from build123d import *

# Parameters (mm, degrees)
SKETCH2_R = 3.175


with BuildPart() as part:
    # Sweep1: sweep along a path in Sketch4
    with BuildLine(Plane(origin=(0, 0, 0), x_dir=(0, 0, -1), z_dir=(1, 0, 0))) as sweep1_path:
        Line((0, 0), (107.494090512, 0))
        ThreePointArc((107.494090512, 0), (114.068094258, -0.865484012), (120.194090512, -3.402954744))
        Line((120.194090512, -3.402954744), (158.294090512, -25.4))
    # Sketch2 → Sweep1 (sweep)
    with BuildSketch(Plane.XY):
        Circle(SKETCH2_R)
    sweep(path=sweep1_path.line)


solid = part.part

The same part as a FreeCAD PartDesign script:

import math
import FreeCAD as App
import Part
import Sketcher
from FreeCAD import Vector
Q = App.Units.Quantity

doc = App.newDocument("Part")
body = doc.addObject("PartDesign::Body", "Body")

# Sketch on XY plane
sketch1 = doc.addObject("Sketcher::SketchObject", "Sketch")
body.addObject(sketch1)
sketch1.AttachmentSupport = (doc.XY_Plane, [""])
sketch1.MapMode = "FlatFace"
sketch1.addGeometry(Part.Circle(Vector(0, 0, 0), Vector(0, 0, 1), 3.2), False)
sketch1.addConstraint(Sketcher.Constraint("Coincident", 0, 3, -1, 1))
sketch1.addConstraint(Sketcher.Constraint("Diameter", 0, Q("0.25 in")))

# Sketch on YZ plane
sketch2 = doc.addObject("Sketcher::SketchObject", "Sketch001")
body.addObject(sketch2)
sketch2.AttachmentSupport = (doc.YZ_Plane, [""])
sketch2.MapMode = "FlatFace"
sketch2.addGeometry(Part.LineSegment(Vector(0, 0, 0), Vector(0, -107, 0)), False)
sketch2.addGeometry(Part.ArcOfCircle(Part.Circle(Vector(-25, -107, 0), Vector(0, 0, 1), 25), math.radians(-30), math.radians(0)), False)
sketch2.addGeometry(Part.LineSegment(Vector(-3, -120, 0), Vector(-25, -158, 0)), False)
sketch2.addConstraint(Sketcher.Constraint("Tangent", 0, 2, 1, 2))
sketch2.addConstraint(Sketcher.Constraint("Tangent", 1, 1, 2, 1))
sketch2.addConstraint(Sketcher.Constraint("Vertical", 0))
sketch2.addConstraint(Sketcher.Constraint("Coincident", 0, 1, -1, 1))
sketch2.addConstraint(Sketcher.Constraint("Vertical", 1, 3, 2, 2))
sketch2.addConstraint(Sketcher.Constraint("Radius", 1, Q("1 in")))
sketch2.addConstraint(Sketcher.Constraint("Angle", 2, Q("-120 deg")))
sketch2.addConstraint(Sketcher.Constraint("DistanceY", 0, 2, 0, 1, Q("107.494091 mm")))
doc.recompute()

additivepipe = doc.addObject("PartDesign::AdditivePipe", "AdditivePipe")
body.addObject(additivepipe)
additivepipe.Profile = sketch1
additivepipe.Spine = (sketch2, ["Edge1", "Edge2", "Edge3"])

doc.recompute()
